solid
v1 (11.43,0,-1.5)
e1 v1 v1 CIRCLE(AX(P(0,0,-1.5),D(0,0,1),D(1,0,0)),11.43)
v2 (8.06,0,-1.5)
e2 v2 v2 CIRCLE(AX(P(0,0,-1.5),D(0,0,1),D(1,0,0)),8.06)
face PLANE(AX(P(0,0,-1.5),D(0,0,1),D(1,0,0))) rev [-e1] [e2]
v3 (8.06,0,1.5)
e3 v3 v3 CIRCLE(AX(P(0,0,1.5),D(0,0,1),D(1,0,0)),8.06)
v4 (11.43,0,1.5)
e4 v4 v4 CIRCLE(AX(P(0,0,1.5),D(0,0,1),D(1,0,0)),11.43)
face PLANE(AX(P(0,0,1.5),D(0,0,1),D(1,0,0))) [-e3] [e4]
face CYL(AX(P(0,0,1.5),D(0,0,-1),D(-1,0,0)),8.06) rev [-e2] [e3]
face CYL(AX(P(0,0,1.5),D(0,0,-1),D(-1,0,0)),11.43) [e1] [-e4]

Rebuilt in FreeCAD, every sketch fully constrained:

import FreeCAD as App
import Part
import Sketcher
from FreeCAD import Vector

doc = App.newDocument("Part")
body = doc.addObject("PartDesign::Body", "Body")

# Sketch on XY plane
sketch1 = body.newObject("Sketcher::SketchObject", "Sketch")
sketch1.AttachmentSupport = (doc.getObject("XY_Plane"), [""])
sketch1.MapMode = "FlatFace"
sketch1.addGeometry([
    Part.Circle(Vector(0, 0, 0), Vector(0, 0, 1), 11),
    Part.Circle(Vector(0, 0, 0), Vector(0, 0, 1), 8),
], False)
sketch1.addConstraint([
    Sketcher.Constraint("Coincident", 0, 3, -1, 1),
    Sketcher.Constraint("Coincident", 1, 3, -1, 1),
    Sketcher.Constraint("Diameter", 0, 22.86),
    Sketcher.Constraint("Diameter", 1, 16.12),
])
pad1 = body.newObject("PartDesign::Pad", "Pad")
pad1.Profile = sketch1
pad1.Length = 3
pad1.Midplane = True

doc.recompute()
